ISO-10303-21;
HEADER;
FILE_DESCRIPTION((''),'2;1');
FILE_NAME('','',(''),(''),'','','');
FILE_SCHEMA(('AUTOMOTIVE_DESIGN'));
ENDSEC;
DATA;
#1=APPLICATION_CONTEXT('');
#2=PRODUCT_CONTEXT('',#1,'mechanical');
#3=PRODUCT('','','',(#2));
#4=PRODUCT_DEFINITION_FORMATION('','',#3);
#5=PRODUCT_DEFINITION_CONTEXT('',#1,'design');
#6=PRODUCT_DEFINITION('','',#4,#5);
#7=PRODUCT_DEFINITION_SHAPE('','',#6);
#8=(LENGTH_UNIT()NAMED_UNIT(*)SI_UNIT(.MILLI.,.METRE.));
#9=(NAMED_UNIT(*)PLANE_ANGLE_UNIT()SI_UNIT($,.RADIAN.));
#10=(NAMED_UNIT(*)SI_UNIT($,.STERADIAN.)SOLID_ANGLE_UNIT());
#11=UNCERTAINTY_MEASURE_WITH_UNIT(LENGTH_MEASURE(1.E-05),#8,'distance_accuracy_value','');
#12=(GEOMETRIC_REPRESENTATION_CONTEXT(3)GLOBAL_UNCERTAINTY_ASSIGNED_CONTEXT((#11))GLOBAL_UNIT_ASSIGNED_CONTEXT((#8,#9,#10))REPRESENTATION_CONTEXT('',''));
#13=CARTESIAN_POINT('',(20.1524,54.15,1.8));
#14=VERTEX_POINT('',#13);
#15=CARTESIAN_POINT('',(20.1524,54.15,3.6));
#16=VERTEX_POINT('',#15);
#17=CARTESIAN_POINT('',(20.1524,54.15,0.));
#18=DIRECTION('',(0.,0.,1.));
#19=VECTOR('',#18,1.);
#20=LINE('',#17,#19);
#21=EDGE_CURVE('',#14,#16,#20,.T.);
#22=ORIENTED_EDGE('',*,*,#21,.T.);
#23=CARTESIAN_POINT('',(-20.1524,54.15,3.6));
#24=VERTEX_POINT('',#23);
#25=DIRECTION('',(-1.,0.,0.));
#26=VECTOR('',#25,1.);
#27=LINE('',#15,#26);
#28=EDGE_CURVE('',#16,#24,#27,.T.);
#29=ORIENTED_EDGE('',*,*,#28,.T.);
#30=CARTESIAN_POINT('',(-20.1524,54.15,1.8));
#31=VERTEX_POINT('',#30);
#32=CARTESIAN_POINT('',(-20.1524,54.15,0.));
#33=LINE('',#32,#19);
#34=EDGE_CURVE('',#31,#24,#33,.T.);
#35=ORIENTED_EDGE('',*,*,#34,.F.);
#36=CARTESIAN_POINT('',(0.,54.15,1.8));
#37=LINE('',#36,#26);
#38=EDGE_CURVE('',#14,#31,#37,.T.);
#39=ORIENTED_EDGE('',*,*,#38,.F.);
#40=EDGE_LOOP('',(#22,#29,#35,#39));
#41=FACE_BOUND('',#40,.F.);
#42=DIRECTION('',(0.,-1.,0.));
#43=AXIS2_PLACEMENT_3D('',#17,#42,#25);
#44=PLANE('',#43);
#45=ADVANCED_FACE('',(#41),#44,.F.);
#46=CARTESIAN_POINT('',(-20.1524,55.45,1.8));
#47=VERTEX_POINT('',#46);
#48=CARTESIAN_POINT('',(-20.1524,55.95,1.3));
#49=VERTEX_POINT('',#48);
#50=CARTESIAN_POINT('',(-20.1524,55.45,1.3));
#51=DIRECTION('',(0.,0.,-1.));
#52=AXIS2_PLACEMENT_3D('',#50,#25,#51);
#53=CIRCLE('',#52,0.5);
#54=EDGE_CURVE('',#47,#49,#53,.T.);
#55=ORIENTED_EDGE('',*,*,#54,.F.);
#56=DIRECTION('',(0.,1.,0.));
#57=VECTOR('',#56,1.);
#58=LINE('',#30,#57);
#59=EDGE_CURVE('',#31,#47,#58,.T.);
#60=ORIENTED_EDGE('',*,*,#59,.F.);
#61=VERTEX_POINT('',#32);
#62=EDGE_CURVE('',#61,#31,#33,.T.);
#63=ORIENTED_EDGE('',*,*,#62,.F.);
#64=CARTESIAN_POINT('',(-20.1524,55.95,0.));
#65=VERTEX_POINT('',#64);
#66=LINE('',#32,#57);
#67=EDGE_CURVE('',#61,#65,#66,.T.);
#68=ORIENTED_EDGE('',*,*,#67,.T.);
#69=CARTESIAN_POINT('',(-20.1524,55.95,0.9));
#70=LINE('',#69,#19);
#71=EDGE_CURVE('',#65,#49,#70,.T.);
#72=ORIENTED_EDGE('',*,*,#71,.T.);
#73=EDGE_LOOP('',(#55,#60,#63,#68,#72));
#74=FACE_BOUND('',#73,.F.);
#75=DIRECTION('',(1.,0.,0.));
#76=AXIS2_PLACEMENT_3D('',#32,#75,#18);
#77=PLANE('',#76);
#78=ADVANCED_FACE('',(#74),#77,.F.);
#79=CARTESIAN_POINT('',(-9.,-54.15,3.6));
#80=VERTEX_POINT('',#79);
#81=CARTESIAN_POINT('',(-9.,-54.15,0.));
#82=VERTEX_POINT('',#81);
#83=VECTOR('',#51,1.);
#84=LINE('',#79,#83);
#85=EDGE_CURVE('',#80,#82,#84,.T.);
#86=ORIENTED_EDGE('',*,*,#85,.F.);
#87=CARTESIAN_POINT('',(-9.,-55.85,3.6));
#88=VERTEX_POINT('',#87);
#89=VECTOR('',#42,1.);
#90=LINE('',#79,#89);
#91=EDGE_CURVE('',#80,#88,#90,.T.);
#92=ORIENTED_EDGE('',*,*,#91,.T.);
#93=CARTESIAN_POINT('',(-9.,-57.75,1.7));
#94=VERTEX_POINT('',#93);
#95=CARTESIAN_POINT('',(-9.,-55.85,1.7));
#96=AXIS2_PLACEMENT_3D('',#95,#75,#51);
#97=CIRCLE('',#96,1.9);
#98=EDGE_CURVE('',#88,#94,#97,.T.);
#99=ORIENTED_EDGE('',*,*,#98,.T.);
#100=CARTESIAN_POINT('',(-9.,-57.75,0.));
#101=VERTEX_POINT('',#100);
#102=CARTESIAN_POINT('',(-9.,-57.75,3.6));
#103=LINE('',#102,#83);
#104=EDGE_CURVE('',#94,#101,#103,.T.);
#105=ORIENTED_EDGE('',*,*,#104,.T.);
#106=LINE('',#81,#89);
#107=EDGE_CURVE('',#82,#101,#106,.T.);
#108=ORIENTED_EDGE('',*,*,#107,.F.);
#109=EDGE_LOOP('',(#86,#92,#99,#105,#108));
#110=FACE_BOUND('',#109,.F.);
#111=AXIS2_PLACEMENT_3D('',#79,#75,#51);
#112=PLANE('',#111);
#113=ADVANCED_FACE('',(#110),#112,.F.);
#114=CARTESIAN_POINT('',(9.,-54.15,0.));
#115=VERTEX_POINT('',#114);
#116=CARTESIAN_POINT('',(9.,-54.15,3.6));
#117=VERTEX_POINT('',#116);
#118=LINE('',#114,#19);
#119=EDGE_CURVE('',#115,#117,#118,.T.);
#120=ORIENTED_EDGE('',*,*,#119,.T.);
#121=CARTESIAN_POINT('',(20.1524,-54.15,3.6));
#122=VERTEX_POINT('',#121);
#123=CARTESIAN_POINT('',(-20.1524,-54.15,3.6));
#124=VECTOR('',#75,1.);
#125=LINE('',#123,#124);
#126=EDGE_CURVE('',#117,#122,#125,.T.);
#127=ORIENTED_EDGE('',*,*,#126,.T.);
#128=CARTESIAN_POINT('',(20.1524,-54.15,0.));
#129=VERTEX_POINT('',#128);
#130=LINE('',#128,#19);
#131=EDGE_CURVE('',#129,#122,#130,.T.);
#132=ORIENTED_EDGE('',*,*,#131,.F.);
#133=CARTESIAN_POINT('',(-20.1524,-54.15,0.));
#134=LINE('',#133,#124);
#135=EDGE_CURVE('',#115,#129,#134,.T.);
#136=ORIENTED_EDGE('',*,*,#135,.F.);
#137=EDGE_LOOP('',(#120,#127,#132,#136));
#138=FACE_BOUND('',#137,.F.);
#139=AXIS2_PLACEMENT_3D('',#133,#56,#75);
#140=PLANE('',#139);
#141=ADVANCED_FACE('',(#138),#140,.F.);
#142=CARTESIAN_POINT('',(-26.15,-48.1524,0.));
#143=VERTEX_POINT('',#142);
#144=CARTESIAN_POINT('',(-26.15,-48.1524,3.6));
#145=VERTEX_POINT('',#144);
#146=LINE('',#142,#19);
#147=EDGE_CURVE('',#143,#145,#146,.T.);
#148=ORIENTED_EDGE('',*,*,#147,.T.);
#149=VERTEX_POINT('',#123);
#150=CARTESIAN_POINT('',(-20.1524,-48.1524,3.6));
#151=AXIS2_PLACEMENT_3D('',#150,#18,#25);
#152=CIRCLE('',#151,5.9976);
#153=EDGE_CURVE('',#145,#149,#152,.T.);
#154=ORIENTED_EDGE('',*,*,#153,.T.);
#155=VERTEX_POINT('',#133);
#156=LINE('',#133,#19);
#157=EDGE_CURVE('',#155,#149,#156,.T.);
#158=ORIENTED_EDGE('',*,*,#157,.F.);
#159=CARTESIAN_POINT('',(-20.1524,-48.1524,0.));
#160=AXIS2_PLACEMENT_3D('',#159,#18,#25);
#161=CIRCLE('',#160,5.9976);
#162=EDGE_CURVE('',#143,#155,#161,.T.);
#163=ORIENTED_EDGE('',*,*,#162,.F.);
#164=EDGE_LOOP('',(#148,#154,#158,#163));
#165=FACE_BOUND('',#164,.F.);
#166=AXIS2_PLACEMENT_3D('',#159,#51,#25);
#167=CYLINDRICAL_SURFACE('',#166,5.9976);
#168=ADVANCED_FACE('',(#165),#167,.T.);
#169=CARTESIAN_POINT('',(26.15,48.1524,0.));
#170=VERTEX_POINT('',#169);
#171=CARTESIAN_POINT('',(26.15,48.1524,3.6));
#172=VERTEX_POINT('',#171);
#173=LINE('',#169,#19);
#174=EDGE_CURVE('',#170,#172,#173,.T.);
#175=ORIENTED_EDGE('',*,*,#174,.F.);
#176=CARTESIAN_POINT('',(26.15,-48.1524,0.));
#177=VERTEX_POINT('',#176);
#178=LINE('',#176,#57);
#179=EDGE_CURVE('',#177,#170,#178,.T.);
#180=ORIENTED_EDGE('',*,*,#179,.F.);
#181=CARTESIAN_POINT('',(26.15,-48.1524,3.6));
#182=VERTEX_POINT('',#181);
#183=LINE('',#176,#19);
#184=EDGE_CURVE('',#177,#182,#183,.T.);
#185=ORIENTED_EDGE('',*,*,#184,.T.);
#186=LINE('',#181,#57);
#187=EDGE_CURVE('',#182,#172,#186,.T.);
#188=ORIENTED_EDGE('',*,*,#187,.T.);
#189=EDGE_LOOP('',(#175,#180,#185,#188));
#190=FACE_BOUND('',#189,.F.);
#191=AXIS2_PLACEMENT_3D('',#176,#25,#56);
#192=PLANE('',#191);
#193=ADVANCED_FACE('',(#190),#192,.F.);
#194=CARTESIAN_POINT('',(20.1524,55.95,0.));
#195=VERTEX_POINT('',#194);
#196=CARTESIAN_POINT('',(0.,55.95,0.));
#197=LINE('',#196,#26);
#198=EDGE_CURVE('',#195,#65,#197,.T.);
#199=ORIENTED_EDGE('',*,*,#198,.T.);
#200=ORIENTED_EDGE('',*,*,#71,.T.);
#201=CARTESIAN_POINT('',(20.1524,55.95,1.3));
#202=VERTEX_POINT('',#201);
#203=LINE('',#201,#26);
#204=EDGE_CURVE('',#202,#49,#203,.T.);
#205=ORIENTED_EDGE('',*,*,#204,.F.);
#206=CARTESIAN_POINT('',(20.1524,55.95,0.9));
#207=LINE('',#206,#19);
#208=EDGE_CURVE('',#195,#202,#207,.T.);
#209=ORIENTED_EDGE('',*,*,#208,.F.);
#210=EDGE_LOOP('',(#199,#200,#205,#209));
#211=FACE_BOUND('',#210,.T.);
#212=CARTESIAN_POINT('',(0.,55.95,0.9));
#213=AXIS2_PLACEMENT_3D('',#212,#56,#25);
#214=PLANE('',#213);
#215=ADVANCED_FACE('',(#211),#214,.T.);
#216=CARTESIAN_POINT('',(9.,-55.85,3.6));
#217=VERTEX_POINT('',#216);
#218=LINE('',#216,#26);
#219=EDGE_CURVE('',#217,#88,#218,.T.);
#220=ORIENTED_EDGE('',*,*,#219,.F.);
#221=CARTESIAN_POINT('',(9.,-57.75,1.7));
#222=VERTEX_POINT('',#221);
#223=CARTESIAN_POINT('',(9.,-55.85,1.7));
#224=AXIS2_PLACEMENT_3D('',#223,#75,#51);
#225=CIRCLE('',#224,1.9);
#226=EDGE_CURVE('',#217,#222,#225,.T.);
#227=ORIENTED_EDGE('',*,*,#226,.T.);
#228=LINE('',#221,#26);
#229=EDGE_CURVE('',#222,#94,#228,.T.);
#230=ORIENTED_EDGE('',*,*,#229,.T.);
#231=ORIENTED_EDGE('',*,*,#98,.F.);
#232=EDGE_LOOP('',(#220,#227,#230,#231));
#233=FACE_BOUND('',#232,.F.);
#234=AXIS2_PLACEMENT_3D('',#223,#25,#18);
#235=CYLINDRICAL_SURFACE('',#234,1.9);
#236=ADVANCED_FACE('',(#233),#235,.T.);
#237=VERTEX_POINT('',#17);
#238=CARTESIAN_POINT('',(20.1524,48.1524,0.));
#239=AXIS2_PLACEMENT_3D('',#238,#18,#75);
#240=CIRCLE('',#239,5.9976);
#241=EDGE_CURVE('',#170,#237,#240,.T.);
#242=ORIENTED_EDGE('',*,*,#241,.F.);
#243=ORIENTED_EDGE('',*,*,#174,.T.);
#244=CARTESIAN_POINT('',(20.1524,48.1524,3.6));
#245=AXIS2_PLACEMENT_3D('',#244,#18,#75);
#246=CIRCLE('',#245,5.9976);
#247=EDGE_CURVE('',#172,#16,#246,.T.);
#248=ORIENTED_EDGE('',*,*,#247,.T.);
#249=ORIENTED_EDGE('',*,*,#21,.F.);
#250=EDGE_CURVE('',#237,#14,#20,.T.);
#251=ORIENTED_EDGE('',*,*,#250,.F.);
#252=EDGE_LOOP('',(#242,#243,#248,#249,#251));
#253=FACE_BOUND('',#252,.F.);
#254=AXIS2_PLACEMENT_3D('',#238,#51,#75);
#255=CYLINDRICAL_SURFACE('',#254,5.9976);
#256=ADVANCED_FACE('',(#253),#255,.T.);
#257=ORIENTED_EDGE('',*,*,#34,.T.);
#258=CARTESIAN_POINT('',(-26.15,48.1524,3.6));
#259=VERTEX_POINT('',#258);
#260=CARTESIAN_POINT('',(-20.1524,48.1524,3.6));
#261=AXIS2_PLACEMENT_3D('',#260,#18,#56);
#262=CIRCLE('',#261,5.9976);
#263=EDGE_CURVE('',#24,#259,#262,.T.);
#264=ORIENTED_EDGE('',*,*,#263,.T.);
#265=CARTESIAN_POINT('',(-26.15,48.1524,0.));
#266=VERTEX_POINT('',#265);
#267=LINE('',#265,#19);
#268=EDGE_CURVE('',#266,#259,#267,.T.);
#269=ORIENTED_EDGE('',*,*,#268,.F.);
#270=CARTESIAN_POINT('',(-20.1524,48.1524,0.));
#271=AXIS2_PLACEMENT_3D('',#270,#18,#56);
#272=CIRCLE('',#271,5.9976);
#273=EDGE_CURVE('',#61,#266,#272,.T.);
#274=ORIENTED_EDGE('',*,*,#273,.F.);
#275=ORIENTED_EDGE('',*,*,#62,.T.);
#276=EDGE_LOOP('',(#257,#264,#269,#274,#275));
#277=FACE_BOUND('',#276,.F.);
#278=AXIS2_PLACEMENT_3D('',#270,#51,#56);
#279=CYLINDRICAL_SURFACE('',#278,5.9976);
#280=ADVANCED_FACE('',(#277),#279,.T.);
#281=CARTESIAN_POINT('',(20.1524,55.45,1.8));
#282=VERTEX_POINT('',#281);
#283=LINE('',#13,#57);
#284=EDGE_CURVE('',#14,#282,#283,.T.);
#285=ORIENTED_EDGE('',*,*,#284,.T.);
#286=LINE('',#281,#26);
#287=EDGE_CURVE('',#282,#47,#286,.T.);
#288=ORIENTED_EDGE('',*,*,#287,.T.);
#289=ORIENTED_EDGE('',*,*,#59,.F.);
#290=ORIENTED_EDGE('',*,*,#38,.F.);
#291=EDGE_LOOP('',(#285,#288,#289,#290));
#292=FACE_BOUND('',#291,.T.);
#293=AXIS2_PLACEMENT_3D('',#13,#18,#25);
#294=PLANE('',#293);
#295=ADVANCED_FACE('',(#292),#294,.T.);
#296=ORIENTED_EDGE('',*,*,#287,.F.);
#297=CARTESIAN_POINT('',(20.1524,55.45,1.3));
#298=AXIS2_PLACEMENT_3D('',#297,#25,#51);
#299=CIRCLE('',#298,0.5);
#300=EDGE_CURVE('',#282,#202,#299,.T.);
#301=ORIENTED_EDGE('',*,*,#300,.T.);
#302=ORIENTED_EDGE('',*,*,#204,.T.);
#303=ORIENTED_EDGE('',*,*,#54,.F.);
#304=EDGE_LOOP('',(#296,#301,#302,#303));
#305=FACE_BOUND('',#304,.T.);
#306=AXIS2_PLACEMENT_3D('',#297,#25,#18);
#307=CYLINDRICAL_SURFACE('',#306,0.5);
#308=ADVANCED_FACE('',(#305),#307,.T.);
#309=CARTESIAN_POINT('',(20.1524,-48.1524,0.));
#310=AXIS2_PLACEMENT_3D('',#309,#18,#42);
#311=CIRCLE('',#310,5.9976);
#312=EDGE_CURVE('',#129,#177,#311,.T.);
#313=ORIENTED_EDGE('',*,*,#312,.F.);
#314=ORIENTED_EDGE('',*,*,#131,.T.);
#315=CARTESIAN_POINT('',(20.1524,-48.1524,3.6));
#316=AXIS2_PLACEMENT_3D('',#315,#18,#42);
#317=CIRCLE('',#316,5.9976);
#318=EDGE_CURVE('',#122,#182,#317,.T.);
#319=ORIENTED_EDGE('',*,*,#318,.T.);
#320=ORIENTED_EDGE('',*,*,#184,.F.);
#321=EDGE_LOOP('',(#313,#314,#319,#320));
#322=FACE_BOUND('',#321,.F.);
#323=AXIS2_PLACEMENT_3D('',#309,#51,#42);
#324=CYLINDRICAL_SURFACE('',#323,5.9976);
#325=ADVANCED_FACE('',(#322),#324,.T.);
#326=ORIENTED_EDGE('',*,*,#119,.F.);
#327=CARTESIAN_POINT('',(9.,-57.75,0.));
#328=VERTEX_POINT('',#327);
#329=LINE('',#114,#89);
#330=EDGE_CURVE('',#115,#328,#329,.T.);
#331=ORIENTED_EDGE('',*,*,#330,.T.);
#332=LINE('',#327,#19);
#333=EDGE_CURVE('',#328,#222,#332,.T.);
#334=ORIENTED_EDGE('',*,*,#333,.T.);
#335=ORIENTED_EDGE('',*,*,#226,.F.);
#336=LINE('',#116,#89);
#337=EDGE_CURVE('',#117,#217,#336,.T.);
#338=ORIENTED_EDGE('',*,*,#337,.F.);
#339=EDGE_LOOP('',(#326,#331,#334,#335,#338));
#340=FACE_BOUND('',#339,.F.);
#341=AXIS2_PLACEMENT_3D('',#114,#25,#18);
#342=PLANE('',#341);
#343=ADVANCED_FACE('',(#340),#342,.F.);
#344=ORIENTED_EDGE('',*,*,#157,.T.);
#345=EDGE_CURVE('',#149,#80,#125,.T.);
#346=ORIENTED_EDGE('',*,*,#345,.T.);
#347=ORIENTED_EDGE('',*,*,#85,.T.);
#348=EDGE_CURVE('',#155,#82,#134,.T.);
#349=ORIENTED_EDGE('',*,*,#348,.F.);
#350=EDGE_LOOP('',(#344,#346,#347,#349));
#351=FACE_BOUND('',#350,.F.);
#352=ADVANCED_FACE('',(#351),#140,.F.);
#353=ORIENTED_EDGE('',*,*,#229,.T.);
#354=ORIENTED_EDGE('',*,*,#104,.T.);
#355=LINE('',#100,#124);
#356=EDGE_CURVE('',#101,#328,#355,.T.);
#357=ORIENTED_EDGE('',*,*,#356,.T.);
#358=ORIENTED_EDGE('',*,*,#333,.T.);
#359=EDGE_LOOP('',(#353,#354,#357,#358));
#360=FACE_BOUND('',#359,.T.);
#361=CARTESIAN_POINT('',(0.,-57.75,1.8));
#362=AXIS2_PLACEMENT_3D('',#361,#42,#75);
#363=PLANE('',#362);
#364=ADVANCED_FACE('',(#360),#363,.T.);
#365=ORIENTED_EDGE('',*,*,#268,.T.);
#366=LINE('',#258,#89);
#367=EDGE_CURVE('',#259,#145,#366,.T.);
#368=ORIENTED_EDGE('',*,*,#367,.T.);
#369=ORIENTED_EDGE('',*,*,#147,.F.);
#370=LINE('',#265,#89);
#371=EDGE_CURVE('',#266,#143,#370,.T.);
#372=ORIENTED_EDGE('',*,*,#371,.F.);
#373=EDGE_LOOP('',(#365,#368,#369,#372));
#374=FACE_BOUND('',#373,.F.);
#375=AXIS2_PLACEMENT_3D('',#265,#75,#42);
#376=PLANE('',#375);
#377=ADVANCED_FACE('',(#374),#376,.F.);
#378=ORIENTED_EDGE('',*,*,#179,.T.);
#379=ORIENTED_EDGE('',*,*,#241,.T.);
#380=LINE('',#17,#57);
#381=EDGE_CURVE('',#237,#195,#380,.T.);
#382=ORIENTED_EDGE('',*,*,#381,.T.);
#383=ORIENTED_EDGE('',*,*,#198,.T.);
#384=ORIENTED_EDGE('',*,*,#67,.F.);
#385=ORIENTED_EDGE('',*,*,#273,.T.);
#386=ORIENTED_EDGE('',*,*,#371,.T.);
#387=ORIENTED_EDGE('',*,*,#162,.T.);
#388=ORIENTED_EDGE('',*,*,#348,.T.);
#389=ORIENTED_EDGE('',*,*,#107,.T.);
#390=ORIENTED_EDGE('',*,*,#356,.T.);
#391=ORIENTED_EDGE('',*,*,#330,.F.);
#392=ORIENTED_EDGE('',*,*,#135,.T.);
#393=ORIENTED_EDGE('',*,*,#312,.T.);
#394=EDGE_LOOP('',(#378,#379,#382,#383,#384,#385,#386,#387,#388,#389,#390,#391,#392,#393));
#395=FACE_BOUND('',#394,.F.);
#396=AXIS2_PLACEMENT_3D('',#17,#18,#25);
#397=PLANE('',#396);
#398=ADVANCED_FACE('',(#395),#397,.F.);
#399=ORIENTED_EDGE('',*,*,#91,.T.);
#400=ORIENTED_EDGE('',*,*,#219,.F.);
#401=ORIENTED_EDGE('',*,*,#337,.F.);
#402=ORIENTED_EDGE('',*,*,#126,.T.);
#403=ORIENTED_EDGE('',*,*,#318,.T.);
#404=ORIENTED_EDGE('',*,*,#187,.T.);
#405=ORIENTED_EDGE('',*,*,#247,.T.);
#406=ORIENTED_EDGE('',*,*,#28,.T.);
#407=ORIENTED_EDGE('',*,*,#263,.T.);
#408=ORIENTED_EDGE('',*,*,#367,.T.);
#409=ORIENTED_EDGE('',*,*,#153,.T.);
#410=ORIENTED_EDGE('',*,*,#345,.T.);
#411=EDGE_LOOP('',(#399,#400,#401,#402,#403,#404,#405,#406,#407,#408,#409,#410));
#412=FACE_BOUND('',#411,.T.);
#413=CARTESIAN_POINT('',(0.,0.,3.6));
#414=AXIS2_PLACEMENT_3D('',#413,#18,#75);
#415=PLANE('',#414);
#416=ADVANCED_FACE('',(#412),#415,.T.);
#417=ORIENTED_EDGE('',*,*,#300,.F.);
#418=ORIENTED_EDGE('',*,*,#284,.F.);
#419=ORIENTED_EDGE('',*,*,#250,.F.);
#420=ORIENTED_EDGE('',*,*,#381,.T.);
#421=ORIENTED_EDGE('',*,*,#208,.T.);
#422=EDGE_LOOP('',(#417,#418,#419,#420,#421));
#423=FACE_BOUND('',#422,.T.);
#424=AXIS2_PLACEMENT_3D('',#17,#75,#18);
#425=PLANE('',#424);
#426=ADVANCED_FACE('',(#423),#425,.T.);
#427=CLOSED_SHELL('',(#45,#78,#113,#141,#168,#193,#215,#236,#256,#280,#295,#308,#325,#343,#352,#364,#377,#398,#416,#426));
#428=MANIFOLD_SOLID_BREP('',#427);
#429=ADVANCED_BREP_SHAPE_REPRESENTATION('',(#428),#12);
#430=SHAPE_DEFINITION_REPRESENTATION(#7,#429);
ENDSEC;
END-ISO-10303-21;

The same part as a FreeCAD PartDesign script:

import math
import FreeCAD as App
import Part
import Sketcher


def edges_at(feature, points):
    """Names of the edges that pass closest to the given points."""
    edges = feature.Shape.Edges
    near = lambda p: min(range(len(edges)), key=lambda i: edges[i].distToShape(Part.Vertex(*p))[0])
    return sorted({f"Edge{near(p) + 1}" for p in points})

doc = App.newDocument("Part")
body = doc.addObject("PartDesign::Body", "Body")

# Sketch on XY plane
sketch1 = body.newObject("Sketcher::SketchObject", "Sketch")
sketch1.AttachmentSupport = (doc.getObject("XY_Plane"), [""])
sketch1.MapMode = "FlatFace"
sketch1.addGeometry([
    Part.LineSegment(App.Vector(-20, -54, 0), App.Vector(20, -54, 0)),  # 0
    Part.ArcOfCircle(Part.Circle(App.Vector(20, -48, 0), App.Vector(0, 0, 1), 6), math.radians(-90), math.radians(0)),  # 1
    Part.LineSegment(App.Vector(26, -48, 0), App.Vector(26, 48, 0)),  # 2
    Part.ArcOfCircle(Part.Circle(App.Vector(20, 48, 0), App.Vector(0, 0, 1), 6), math.radians(0), math.radians(90)),  # 3
    Part.LineSegment(App.Vector(20, 54, 0), App.Vector(-20, 54, 0)),  # 4
    Part.ArcOfCircle(Part.Circle(App.Vector(-20, 48, 0), App.Vector(0, 0, 1), 6), math.radians(90), math.radians(180)),  # 5
    Part.LineSegment(App.Vector(-26, 48, 0), App.Vector(-26, -48, 0)),  # 6
    Part.ArcOfCircle(Part.Circle(App.Vector(-20, -48, 0), App.Vector(0, 0, 1), 6), math.radians(180), math.radians(270)),  # 7
], False)
sketch1.addConstraint([
    Sketcher.Constraint("Tangent", 0, 2, 1, 1),
    Sketcher.Constraint("Tangent", 1, 2, 2, 1),
    Sketcher.Constraint("Tangent", 2, 2, 3, 1),
    Sketcher.Constraint("Tangent", 3, 2, 4, 1),
    Sketcher.Constraint("Tangent", 4, 2, 5, 1),
    Sketcher.Constraint("Tangent", 5, 2, 6, 1),
    Sketcher.Constraint("Tangent", 6, 2, 7, 1),
    Sketcher.Constraint("Tangent", 7, 2, 0, 1),
    Sketcher.Constraint("Horizontal", 0),
    Sketcher.Constraint("Vertical", 2),
    Sketcher.Constraint("Horizontal", 4),
    Sketcher.Constraint("Vertical", 6),
    Sketcher.Constraint("Equal", 1, 3),
    Sketcher.Constraint("Equal", 3, 5),
    Sketcher.Constraint("Equal", 5, 7),
    Sketcher.Constraint("Symmetric", 1, 3, 5, 3, -1, 1),
    Sketcher.Constraint("Radius", 1, 5.9976),
    Sketcher.Constraint("DistanceX", 5, 2, 2, 2, 52.3),
    Sketcher.Constraint("DistanceY", 0, 2, -1, 1, 54.15),
])
pad1 = body.newObject("PartDesign::Pad", "Pad")
pad1.Profile = sketch1
pad1.Length = 3.6

# Sketch on XZ plane
sketch2 = body.newObject("Sketcher::SketchObject", "Sketch001")
sketch2.AttachmentSupport = (doc.getObject("XZ_Plane"), [""])
sketch2.MapMode = "FlatFace"
sketch2.AttachmentOffset = App.Placement(App.Vector(0, 0, 54.15), App.Rotation())
sketch2.addGeometry([
    Part.LineSegment(App.Vector(9, 3.6, 0), App.Vector(-9, 3.6, 0)),
    Part.LineSegment(App.Vector(-9, 3.6, 0), App.Vector(-9, 0, 0)),
    Part.LineSegment(App.Vector(-9, 0, 0), App.Vector(9, 0, 0)),
    Part.LineSegment(App.Vector(9, 0, 0), App.Vector(9, 3.6, 0)),
], False)
sketch2.addConstraint([
    Sketcher.Constraint("Coincident", 0, 2, 1, 1),
    Sketcher.Constraint("Coincident", 1, 2, 2, 1),
    Sketcher.Constraint("Coincident", 2, 2, 3, 1),
    Sketcher.Constraint("Coincident", 3, 2, 0, 1),
    Sketcher.Constraint("Horizontal", 0),
    Sketcher.Constraint("Vertical", 1),
    Sketcher.Constraint("Horizontal", 2),
    Sketcher.Constraint("Vertical", 3),
    Sketcher.Constraint("Symmetric", 1, 2, 2, 2, -1, 1),
    Sketcher.Constraint("DistanceX", 0, 2, 0, 1, 18.0),
    Sketcher.Constraint("DistanceY", 1, 2, 1, 1, 3.6),
])
pad2 = body.newObject("PartDesign::Pad", "Pad001")
pad2.Profile = sketch2
pad2.Length = 3.6

# Sketch on XZ plane
sketch3 = body.newObject("Sketcher::SketchObject", "Sketch002")
sketch3.AttachmentSupport = (doc.getObject("XZ_Plane"), [""])
sketch3.MapMode = "FlatFace"
sketch3.AttachmentOffset = App.Placement(App.Vector(0, 0, -54.15), App.Rotation())
sketch3.addGeometry([
    Part.LineSegment(App.Vector(20.2, 1.8, 0), App.Vector(20.2, 0, 0)),
    Part.LineSegment(App.Vector(20.2, 0, 0), App.Vector(-20.2, 0, 0)),
    Part.LineSegment(App.Vector(-20.2, 0, 0), App.Vector(-20.2, 1.8, 0)),
    Part.LineSegment(App.Vector(-20.2, 1.8, 0), App.Vector(20.2, 1.8, 0)),
], False)
sketch3.addConstraint([
    Sketcher.Constraint("Coincident", 0, 2, 1, 1),
    Sketcher.Constraint("Coincident", 1, 2, 2, 1),
    Sketcher.Constraint("Coincident", 2, 2, 3, 1),
    Sketcher.Constraint("Coincident", 3, 2, 0, 1),
    Sketcher.Constraint("Vertical", 0),
    Sketcher.Constraint("Horizontal", 1),
    Sketcher.Constraint("Vertical", 2),
    Sketcher.Constraint("Horizontal", 3),
    Sketcher.Constraint("Symmetric", 0, 2, 1, 2, -1, 1),
    Sketcher.Constraint("DistanceY", 0, 2, 0, 1, 1.8),
    Sketcher.Constraint("DistanceX", 1, 2, 1, 1, 40.3048),
])
pad3 = body.newObject("PartDesign::Pad", "Pad002")
pad3.Profile = sketch3
pad3.Length = 1.8
pad3.Reversed = True
doc.recompute()

fillet = body.newObject("PartDesign::Fillet", "Fillet")
fillet.Base = (pad3, edges_at(pad3, [(0, -57.75, 3.6)]))
fillet.Radius = 1.9
doc.recompute()

fillet2 = body.newObject("PartDesign::Fillet", "Fillet001")
fillet2.Base = (fillet, edges_at(fillet, [(0, 55.95, 1.8)]))
fillet2.Radius = 0.5

doc.recompute()
